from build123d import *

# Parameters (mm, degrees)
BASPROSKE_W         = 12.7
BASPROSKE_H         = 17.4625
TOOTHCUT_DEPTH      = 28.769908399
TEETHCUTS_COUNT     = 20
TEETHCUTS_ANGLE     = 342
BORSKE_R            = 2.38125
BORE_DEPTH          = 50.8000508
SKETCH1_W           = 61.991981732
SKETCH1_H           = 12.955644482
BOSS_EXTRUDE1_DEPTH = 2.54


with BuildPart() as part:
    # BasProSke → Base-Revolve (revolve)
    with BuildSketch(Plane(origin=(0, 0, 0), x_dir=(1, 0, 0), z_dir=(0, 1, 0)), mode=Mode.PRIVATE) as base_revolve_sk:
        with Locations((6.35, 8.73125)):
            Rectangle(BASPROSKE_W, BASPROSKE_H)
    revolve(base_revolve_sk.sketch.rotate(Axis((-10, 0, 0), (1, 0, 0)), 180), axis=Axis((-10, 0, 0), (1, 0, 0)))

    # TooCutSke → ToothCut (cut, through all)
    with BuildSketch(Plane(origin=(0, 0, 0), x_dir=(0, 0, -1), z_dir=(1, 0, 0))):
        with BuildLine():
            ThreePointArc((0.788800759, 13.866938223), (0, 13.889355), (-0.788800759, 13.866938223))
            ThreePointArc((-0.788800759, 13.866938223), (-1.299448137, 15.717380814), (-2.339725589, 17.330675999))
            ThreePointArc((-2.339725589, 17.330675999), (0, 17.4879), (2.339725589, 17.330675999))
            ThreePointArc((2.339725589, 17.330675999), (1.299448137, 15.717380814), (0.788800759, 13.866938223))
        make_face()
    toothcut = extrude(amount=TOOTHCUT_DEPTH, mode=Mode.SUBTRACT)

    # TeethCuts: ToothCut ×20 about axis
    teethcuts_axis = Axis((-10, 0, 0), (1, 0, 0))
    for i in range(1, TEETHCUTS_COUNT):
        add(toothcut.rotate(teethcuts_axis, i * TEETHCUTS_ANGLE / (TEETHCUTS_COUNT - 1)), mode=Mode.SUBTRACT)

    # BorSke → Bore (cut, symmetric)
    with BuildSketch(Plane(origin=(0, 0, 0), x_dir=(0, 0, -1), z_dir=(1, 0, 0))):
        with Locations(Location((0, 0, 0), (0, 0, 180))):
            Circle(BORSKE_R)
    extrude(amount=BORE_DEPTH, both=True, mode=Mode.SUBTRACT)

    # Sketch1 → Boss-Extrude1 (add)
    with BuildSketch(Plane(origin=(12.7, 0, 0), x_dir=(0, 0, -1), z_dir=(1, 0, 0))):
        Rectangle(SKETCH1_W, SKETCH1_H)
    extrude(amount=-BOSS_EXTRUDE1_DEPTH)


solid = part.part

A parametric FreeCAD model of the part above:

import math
import FreeCAD as App
import Part
import Sketcher

V = App.Vector
Q = App.Units.Quantity


def add_polygon(sketch, points):
    """Adds a closed chain of lines whose ends are joined by coincident constraints."""
    first, n = sketch.GeometryCount, len(points)
    for a, b in zip(points, points[1:] + points[:1]):
        sketch.addGeometry(Part.LineSegment(App.Vector(*a, 0), App.Vector(*b, 0)), False)
    for i in range(n):
        sketch.addConstraint(Sketcher.Constraint("Coincident", first + i, 2, first + (i + 1) % n, 1))

doc = App.newDocument("Part")
body = doc.addObject("PartDesign::Body", "Body")

# Sketch on XZ plane
sketch1 = body.newObject("Sketcher::SketchObject", "Sketch")
sketch1.AttachmentSupport = (doc.getObject("XZ_Plane"), [""])
sketch1.MapMode = "FlatFace"
add_polygon(sketch1, [(0, -17), (0, 0), (13, 0), (13, -17)])  # lines 0-3
sketch1.addConstraint([
    Sketcher.Constraint("Vertical", 0),
    Sketcher.Constraint("Horizontal", 1),
    Sketcher.Constraint("Vertical", 2),
    Sketcher.Constraint("Horizontal", 3),
    Sketcher.Constraint("Coincident", 0, 2, -1, 1),
    Sketcher.Constraint("DistanceX", 1, 1, 1, 2, Q("0.5 in")),
    Sketcher.Constraint("DistanceY", 0, 1, 0, 2, Q("0.6875 in")),
])
revolution = body.newObject("PartDesign::Revolution", "Revolution")
revolution.Profile = sketch1
revolution.ReferenceAxis = (sketch1, ["H_Axis"])
revolution.Angle = 360

# Sketch on YZ plane
sketch2 = body.newObject("Sketcher::SketchObject", "Sketch001")
sketch2.AttachmentSupport = (doc.getObject("YZ_Plane"), [""])
sketch2.MapMode = "FlatFace"
sketch2.addGeometry([
    Part.ArcOfCircle(Part.Circle(V(0, 0, 0), V(0, 0, 1), 13.9), math.radians(-3.26), math.radians(3.26)),
    Part.ArcOfCircle(Part.Circle(V(13.1, -7.1, 0), V(0, 0, 1), 6.3), math.radians(48), math.radians(83)),
    Part.ArcOfCircle(Part.Circle(V(0, 0, 0), V(0, 0, 1), 17.5), math.radians(-7.69), math.radians(7.69)),
    Part.ArcOfCircle(Part.Circle(V(13.1, 7.1, 0), V(0, 0, 1), 6.3), math.radians(-83), math.radians(-48)),
], False)
sketch2.addConstraint([
    Sketcher.Constraint("Coincident", 0, 1, 1, 2),
    Sketcher.Constraint("Coincident", 1, 1, 2, 1),
    Sketcher.Constraint("Coincident", 2, 2, 3, 2),
    Sketcher.Constraint("Coincident", 3, 1, 0, 2),
    Sketcher.Constraint("Coincident", 0, 3, -1, 1),
    Sketcher.Constraint("Coincident", 2, 3, -1, 1),
    Sketcher.Constraint("Equal", 1, 3),
    Sketcher.Constraint("Symmetric", 1, 3, 3, 3, -1),
    Sketcher.Constraint("Radius", 1, Q("0.25 in")),
    Sketcher.Constraint("Radius", 2, Q("0.6885 in")),
    Sketcher.Constraint("Radius", 0, Q("13.889355 mm")),
    Sketcher.Constraint("DistanceY", 0, 1, -1, 1, Q("0.788801 mm")),
    Sketcher.Constraint("DistanceY", 1, 3, 1, 1, Q("4.755271 mm")),
])
pocket1 = body.newObject("PartDesign::Pocket", "Pocket")
pocket1.Profile = sketch2
pocket1.Type = "ThroughAll"
pocket1.Reversed = True
doc.recompute()

polarpattern = body.newObject("PartDesign::PolarPattern", "PolarPattern")
polarpattern.Originals = [pocket1]
polarpattern.Axis = (doc.getObject("X_Axis"), [""])
polarpattern.Angle = 360
polarpattern.Occurrences = 20
body.Tip = polarpattern

# Sketch on YZ plane
sketch3 = body.newObject("Sketcher::SketchObject", "Sketch002")
sketch3.AttachmentSupport = (doc.getObject("YZ_Plane"), [""])
sketch3.MapMode = "FlatFace"
sketch3.addGeometry(Part.Circle(V(0, 0, 0), V(0, 0, 1), 2.4), False)
sketch3.addConstraint([
    Sketcher.Constraint("Coincident", 0, 3, -1, 1),
    Sketcher.Constraint("Diameter", 0, Q("0.1875 in")),
])
pocket2 = body.newObject("PartDesign::Pocket", "Pocket001")
pocket2.Profile = sketch3
pocket2.Length = 101.600102
pocket2.Midplane = True

# Sketch on YZ plane
sketch4 = body.newObject("Sketcher::SketchObject", "Sketch003")
sketch4.AttachmentSupport = (doc.getObject("YZ_Plane"), [""])
sketch4.MapMode = "FlatFace"
sketch4.AttachmentOffset = App.Placement(V(0, 0, 0.5 * 25.4), App.Rotation())
add_polygon(sketch4, [(6, 31), (-6, 31), (-6, -31), (6, -31)])  # lines 0-3
sketch4.addConstraint([
    Sketcher.Constraint("Horizontal", 0),
    Sketcher.Constraint("Vertical", 1),
    Sketcher.Constraint("Horizontal", 2),
    Sketcher.Constraint("Vertical", 3),
    Sketcher.Constraint("Symmetric", 0, 2, 2, 2, -1, 1),
    Sketcher.Constraint("DistanceY", 1, 2, 1, 1, Q("61.991982 mm")),
    Sketcher.Constraint("DistanceX", 0, 2, 0, 1, Q("12.955644 mm")),
])
pad1 = body.newObject("PartDesign::Pad", "Pad")
pad1.Profile = sketch4
pad1.Length = Q("0.1 in")
pad1.Reversed = True

doc.recompute()
